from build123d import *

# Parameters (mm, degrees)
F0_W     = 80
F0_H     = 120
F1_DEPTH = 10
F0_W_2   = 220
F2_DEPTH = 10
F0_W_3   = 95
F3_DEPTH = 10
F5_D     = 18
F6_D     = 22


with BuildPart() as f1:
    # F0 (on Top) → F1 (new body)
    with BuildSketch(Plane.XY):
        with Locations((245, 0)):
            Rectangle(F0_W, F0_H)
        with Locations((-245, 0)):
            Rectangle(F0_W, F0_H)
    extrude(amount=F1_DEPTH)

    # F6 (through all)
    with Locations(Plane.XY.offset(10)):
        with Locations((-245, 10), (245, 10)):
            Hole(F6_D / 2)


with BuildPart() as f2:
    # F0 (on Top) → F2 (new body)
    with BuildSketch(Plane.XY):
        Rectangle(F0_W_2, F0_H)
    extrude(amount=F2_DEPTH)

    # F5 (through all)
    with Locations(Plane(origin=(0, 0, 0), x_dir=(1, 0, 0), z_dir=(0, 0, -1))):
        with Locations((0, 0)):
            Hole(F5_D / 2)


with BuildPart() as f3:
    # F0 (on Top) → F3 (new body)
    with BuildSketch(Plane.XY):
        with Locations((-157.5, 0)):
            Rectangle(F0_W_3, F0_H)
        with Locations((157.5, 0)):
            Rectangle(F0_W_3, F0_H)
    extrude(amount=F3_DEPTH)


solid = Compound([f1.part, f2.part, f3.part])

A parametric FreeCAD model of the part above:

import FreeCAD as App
import Part
import Sketcher

doc = App.newDocument("Part")
body = doc.addObject("PartDesign::Body", "Body")
body.AllowCompound = True

# Sketch on XY plane
sketch1 = body.newObject("Sketcher::SketchObject", "Sketch")
sketch1.AttachmentSupport = (doc.getObject("XY_Plane"), [""])
sketch1.MapMode = "FlatFace"
sketch1.addGeometry(Part.LineSegment(App.Vector(205, 60, 0), App.Vector(205, -60, 0)), False)
sketch1.addGeometry(Part.LineSegment(App.Vector(205, -60, 0), App.Vector(285, -60, 0)), False)
sketch1.addGeometry(Part.LineSegment(App.Vector(285, -60, 0), App.Vector(285, 60, 0)), False)
sketch1.addGeometry(Part.LineSegment(App.Vector(285, 60, 0), App.Vector(205, 60, 0)), False)
sketch1.addGeometry(Part.LineSegment(App.Vector(-285, 60, 0), App.Vector(-285, -60, 0)), False)
sketch1.addGeometry(Part.LineSegment(App.Vector(-285, -60, 0), App.Vector(-205, -60, 0)), False)
sketch1.addGeometry(Part.LineSegment(App.Vector(-205, -60, 0), App.Vector(-205, 60, 0)), False)
sketch1.addGeometry(Part.LineSegment(App.Vector(-205, 60, 0), App.Vector(-285, 60, 0)), False)
sketch1.addConstraint(Sketcher.Constraint("Coincident", 0, 2, 1, 1))
sketch1.addConstraint(Sketcher.Constraint("Coincident", 1, 2, 2, 1))
sketch1.addConstraint(Sketcher.Constraint("Coincident", 2, 2, 3, 1))
sketch1.addConstraint(Sketcher.Constraint("Coincident", 3, 2, 0, 1))
sketch1.addConstraint(Sketcher.Constraint("Coincident", 4, 2, 5, 1))
sketch1.addConstraint(Sketcher.Constraint("Coincident", 5, 2, 6, 1))
sketch1.addConstraint(Sketcher.Constraint("Coincident", 6, 2, 7, 1))
sketch1.addConstraint(Sketcher.Constraint("Coincident", 7, 2, 4, 1))
sketch1.addConstraint(Sketcher.Constraint("Vertical", 0))
sketch1.addConstraint(Sketcher.Constraint("Horizontal", 1))
sketch1.addConstraint(Sketcher.Constraint("Vertical", 2))
sketch1.addConstraint(Sketcher.Constraint("Horizontal", 3))
sketch1.addConstraint(Sketcher.Constraint("Vertical", 4))
sketch1.addConstraint(Sketcher.Constraint("Horizontal", 5))
sketch1.addConstraint(Sketcher.Constraint("Vertical", 6))
sketch1.addConstraint(Sketcher.Constraint("Horizontal", 7))
sketch1.addConstraint(Sketcher.Constraint("Symmetric", 2, 2, 4, 2, -1, 1))
sketch1.addConstraint(Sketcher.Constraint("Symmetric", 0, 2, 6, 2, -1, 1))
sketch1.addConstraint(Sketcher.Constraint("Horizontal", 1, 2, 4, 2))
sketch1.addConstraint(Sketcher.Constraint("DistanceX", 1, 1, 1, 2, 80.0))
sketch1.addConstraint(Sketcher.Constraint("DistanceY", 0, 2, 0, 1, 120.0))
sketch1.addConstraint(Sketcher.Constraint("DistanceX", -1, 1, 0, 2, 205.0))
pad1 = body.newObject("PartDesign::Pad", "Pad")
pad1.Profile = sketch1
pad1.Length = 10

# Sketch on XY plane
sketch2 = body.newObject("Sketcher::SketchObject", "Sketch001")
sketch2.AttachmentSupport = (doc.getObject("XY_Plane"), [""])
sketch2.MapMode = "FlatFace"
sketch2.AttachmentOffset = App.Placement(App.Vector(0, 0, 10), App.Rotation())
sketch2.addGeometry(Part.Circle(App.Vector(-245, 10, 0), App.Vector(0, 0, 1), 11), False)
sketch2.addGeometry(Part.Circle(App.Vector(245, 10, 0), App.Vector(0, 0, 1), 11), False)
sketch2.addConstraint(Sketcher.Constraint("Equal", 0, 1))
sketch2.addConstraint(Sketcher.Constraint("Symmetric", 0, 3, 1, 3, -2))
sketch2.addConstraint(Sketcher.Constraint("Diameter", 0, 22.0))
sketch2.addConstraint(Sketcher.Constraint("DistanceX", 0, 3, -1, 1, 245.0))
sketch2.addConstraint(Sketcher.Constraint("DistanceY", -1, 1, 0, 3, 10.0))
doc.recompute()
hole = body.newObject("PartDesign::Hole", "Hole")
hole.Profile = sketch2
hole.ThreadType = "None"
hole.Diameter = 22
hole.DepthType = "ThroughAll"
body2 = doc.addObject("PartDesign::Body", "Body001")

# Sketch on XY plane
sketch3 = body2.newObject("Sketcher::SketchObject", "Sketch002")
sketch3.AttachmentSupport = (doc.getObject("XY_Plane001"), [""])
sketch3.MapMode = "FlatFace"
sketch3.addGeometry(Part.LineSegment(App.Vector(-110, 60, 0), App.Vector(-110, -60, 0)), False)
sketch3.addGeometry(Part.LineSegment(App.Vector(-110, -60, 0), App.Vector(110, -60, 0)), False)
sketch3.addGeometry(Part.LineSegment(App.Vector(110, -60, 0), App.Vector(110, 60, 0)), False)
sketch3.addGeometry(Part.LineSegment(App.Vector(110, 60, 0), App.Vector(-110, 60, 0)), False)
sketch3.addConstraint(Sketcher.Constraint("Coincident", 0, 2, 1, 1))
sketch3.addConstraint(Sketcher.Constraint("Coincident", 1, 2, 2, 1))
sketch3.addConstraint(Sketcher.Constraint("Coincident", 2, 2, 3, 1))
sketch3.addConstraint(Sketcher.Constraint("Coincident", 3, 2, 0, 1))
sketch3.addConstraint(Sketcher.Constraint("Vertical", 0))
sketch3.addConstraint(Sketcher.Constraint("Horizontal", 1))
sketch3.addConstraint(Sketcher.Constraint("Vertical", 2))
sketch3.addConstraint(Sketcher.Constraint("Horizontal", 3))
sketch3.addConstraint(Sketcher.Constraint("Symmetric", 0, 2, 2, 2, -1, 1))
sketch3.addConstraint(Sketcher.Constraint("DistanceX", 1, 1, 1, 2, 220.0))
sketch3.addConstraint(Sketcher.Constraint("DistanceY", 0, 2, 0, 1, 120.0))
pad2 = body2.newObject("PartDesign::Pad", "Pad001")
pad2.Profile = sketch3
pad2.Length = 10

# Sketch on XY plane
sketch4 = body2.newObject("Sketcher::SketchObject", "Sketch003")
sketch4.AttachmentSupport = (doc.getObject("XY_Plane001"), [""])
sketch4.MapMode = "FlatFace"
sketch4.addGeometry(Part.Circle(App.Vector(0, 0, 0), App.Vector(0, 0, 1), 9), False)
sketch4.addConstraint(Sketcher.Constraint("Coincident", 0, 3, -1, 1))
sketch4.addConstraint(Sketcher.Constraint("Diameter", 0, 18.0))
doc.recompute()
hole2 = body2.newObject("PartDesign::Hole", "Hole001")
hole2.Profile = sketch4
hole2.ThreadType = "None"
hole2.Diameter = 18
hole2.DepthType = "ThroughAll"
hole2.Reversed = True
body3 = doc.addObject("PartDesign::Body", "Body002")
body3.AllowCompound = True

# Sketch on XY plane
sketch5 = body3.newObject("Sketcher::SketchObject", "Sketch004")
sketch5.AttachmentSupport = (doc.getObject("XY_Plane002"), [""])
sketch5.MapMode = "FlatFace"
sketch5.addGeometry(Part.LineSegment(App.Vector(-205, 60, 0), App.Vector(-205, -60, 0)), False)
sketch5.addGeometry(Part.LineSegment(App.Vector(-205, -60, 0), App.Vector(-110, -60, 0)), False)
sketch5.addGeometry(Part.LineSegment(App.Vector(-110, -60, 0), App.Vector(-110, 60, 0)), False)
sketch5.addGeometry(Part.LineSegment(App.Vector(-110, 60, 0), App.Vector(-205, 60, 0)), False)
sketch5.addGeometry(Part.LineSegment(App.Vector(110, 60, 0), App.Vector(110, -60, 0)), False)
sketch5.addGeometry(Part.LineSegment(App.Vector(110, -60, 0), App.Vector(205, -60, 0)), False)
sketch5.addGeometry(Part.LineSegment(App.Vector(205, -60, 0), App.Vector(205, 60, 0)), False)
sketch5.addGeometry(Part.LineSegment(App.Vector(205, 60, 0), App.Vector(110, 60, 0)), False)
sketch5.addConstraint(Sketcher.Constraint("Coincident", 0, 2, 1, 1))
sketch5.addConstraint(Sketcher.Constraint("Coincident", 1, 2, 2, 1))
sketch5.addConstraint(Sketcher.Constraint("Coincident", 2, 2, 3, 1))
sketch5.addConstraint(Sketcher.Constraint("Coincident", 3, 2, 0, 1))
sketch5.addConstraint(Sketcher.Constraint("Coincident", 4, 2, 5, 1))
sketch5.addConstraint(Sketcher.Constraint("Coincident", 5, 2, 6, 1))
sketch5.addConstraint(Sketcher.Constraint("Coincident", 6, 2, 7, 1))
sketch5.addConstraint(Sketcher.Constraint("Coincident", 7, 2, 4, 1))
sketch5.addConstraint(Sketcher.Constraint("Vertical", 0))
sketch5.addConstraint(Sketcher.Constraint("Horizontal", 1))
sketch5.addConstraint(Sketcher.Constraint("Vertical", 2))
sketch5.addConstraint(Sketcher.Constraint("Horizontal", 3))
sketch5.addConstraint(Sketcher.Constraint("Vertical", 4))
sketch5.addConstraint(Sketcher.Constraint("Horizontal", 5))
sketch5.addConstraint(Sketcher.Constraint("Vertical", 6))
sketch5.addConstraint(Sketcher.Constraint("Horizontal", 7))
sketch5.addConstraint(Sketcher.Constraint("Symmetric", 2, 2, 4, 2, -1, 1))
sketch5.addConstraint(Sketcher.Constraint("Symmetric", 0, 2, 6, 2, -1, 1))
sketch5.addConstraint(Sketcher.Constraint("Horizontal", 1, 2, 4, 2))
sketch5.addConstraint(Sketcher.Constraint("DistanceX", 1, 1, 1, 2, 95.0))
sketch5.addConstraint(Sketcher.Constraint("DistanceY", 0, 2, 0, 1, 120.0))
sketch5.addConstraint(Sketcher.Constraint("DistanceX", 0, 2, -1, 1, 205.0))
pad3 = body3.newObject("PartDesign::Pad", "Pad002")
pad3.Profile = sketch5
pad3.Length = 10

doc.recompute()
